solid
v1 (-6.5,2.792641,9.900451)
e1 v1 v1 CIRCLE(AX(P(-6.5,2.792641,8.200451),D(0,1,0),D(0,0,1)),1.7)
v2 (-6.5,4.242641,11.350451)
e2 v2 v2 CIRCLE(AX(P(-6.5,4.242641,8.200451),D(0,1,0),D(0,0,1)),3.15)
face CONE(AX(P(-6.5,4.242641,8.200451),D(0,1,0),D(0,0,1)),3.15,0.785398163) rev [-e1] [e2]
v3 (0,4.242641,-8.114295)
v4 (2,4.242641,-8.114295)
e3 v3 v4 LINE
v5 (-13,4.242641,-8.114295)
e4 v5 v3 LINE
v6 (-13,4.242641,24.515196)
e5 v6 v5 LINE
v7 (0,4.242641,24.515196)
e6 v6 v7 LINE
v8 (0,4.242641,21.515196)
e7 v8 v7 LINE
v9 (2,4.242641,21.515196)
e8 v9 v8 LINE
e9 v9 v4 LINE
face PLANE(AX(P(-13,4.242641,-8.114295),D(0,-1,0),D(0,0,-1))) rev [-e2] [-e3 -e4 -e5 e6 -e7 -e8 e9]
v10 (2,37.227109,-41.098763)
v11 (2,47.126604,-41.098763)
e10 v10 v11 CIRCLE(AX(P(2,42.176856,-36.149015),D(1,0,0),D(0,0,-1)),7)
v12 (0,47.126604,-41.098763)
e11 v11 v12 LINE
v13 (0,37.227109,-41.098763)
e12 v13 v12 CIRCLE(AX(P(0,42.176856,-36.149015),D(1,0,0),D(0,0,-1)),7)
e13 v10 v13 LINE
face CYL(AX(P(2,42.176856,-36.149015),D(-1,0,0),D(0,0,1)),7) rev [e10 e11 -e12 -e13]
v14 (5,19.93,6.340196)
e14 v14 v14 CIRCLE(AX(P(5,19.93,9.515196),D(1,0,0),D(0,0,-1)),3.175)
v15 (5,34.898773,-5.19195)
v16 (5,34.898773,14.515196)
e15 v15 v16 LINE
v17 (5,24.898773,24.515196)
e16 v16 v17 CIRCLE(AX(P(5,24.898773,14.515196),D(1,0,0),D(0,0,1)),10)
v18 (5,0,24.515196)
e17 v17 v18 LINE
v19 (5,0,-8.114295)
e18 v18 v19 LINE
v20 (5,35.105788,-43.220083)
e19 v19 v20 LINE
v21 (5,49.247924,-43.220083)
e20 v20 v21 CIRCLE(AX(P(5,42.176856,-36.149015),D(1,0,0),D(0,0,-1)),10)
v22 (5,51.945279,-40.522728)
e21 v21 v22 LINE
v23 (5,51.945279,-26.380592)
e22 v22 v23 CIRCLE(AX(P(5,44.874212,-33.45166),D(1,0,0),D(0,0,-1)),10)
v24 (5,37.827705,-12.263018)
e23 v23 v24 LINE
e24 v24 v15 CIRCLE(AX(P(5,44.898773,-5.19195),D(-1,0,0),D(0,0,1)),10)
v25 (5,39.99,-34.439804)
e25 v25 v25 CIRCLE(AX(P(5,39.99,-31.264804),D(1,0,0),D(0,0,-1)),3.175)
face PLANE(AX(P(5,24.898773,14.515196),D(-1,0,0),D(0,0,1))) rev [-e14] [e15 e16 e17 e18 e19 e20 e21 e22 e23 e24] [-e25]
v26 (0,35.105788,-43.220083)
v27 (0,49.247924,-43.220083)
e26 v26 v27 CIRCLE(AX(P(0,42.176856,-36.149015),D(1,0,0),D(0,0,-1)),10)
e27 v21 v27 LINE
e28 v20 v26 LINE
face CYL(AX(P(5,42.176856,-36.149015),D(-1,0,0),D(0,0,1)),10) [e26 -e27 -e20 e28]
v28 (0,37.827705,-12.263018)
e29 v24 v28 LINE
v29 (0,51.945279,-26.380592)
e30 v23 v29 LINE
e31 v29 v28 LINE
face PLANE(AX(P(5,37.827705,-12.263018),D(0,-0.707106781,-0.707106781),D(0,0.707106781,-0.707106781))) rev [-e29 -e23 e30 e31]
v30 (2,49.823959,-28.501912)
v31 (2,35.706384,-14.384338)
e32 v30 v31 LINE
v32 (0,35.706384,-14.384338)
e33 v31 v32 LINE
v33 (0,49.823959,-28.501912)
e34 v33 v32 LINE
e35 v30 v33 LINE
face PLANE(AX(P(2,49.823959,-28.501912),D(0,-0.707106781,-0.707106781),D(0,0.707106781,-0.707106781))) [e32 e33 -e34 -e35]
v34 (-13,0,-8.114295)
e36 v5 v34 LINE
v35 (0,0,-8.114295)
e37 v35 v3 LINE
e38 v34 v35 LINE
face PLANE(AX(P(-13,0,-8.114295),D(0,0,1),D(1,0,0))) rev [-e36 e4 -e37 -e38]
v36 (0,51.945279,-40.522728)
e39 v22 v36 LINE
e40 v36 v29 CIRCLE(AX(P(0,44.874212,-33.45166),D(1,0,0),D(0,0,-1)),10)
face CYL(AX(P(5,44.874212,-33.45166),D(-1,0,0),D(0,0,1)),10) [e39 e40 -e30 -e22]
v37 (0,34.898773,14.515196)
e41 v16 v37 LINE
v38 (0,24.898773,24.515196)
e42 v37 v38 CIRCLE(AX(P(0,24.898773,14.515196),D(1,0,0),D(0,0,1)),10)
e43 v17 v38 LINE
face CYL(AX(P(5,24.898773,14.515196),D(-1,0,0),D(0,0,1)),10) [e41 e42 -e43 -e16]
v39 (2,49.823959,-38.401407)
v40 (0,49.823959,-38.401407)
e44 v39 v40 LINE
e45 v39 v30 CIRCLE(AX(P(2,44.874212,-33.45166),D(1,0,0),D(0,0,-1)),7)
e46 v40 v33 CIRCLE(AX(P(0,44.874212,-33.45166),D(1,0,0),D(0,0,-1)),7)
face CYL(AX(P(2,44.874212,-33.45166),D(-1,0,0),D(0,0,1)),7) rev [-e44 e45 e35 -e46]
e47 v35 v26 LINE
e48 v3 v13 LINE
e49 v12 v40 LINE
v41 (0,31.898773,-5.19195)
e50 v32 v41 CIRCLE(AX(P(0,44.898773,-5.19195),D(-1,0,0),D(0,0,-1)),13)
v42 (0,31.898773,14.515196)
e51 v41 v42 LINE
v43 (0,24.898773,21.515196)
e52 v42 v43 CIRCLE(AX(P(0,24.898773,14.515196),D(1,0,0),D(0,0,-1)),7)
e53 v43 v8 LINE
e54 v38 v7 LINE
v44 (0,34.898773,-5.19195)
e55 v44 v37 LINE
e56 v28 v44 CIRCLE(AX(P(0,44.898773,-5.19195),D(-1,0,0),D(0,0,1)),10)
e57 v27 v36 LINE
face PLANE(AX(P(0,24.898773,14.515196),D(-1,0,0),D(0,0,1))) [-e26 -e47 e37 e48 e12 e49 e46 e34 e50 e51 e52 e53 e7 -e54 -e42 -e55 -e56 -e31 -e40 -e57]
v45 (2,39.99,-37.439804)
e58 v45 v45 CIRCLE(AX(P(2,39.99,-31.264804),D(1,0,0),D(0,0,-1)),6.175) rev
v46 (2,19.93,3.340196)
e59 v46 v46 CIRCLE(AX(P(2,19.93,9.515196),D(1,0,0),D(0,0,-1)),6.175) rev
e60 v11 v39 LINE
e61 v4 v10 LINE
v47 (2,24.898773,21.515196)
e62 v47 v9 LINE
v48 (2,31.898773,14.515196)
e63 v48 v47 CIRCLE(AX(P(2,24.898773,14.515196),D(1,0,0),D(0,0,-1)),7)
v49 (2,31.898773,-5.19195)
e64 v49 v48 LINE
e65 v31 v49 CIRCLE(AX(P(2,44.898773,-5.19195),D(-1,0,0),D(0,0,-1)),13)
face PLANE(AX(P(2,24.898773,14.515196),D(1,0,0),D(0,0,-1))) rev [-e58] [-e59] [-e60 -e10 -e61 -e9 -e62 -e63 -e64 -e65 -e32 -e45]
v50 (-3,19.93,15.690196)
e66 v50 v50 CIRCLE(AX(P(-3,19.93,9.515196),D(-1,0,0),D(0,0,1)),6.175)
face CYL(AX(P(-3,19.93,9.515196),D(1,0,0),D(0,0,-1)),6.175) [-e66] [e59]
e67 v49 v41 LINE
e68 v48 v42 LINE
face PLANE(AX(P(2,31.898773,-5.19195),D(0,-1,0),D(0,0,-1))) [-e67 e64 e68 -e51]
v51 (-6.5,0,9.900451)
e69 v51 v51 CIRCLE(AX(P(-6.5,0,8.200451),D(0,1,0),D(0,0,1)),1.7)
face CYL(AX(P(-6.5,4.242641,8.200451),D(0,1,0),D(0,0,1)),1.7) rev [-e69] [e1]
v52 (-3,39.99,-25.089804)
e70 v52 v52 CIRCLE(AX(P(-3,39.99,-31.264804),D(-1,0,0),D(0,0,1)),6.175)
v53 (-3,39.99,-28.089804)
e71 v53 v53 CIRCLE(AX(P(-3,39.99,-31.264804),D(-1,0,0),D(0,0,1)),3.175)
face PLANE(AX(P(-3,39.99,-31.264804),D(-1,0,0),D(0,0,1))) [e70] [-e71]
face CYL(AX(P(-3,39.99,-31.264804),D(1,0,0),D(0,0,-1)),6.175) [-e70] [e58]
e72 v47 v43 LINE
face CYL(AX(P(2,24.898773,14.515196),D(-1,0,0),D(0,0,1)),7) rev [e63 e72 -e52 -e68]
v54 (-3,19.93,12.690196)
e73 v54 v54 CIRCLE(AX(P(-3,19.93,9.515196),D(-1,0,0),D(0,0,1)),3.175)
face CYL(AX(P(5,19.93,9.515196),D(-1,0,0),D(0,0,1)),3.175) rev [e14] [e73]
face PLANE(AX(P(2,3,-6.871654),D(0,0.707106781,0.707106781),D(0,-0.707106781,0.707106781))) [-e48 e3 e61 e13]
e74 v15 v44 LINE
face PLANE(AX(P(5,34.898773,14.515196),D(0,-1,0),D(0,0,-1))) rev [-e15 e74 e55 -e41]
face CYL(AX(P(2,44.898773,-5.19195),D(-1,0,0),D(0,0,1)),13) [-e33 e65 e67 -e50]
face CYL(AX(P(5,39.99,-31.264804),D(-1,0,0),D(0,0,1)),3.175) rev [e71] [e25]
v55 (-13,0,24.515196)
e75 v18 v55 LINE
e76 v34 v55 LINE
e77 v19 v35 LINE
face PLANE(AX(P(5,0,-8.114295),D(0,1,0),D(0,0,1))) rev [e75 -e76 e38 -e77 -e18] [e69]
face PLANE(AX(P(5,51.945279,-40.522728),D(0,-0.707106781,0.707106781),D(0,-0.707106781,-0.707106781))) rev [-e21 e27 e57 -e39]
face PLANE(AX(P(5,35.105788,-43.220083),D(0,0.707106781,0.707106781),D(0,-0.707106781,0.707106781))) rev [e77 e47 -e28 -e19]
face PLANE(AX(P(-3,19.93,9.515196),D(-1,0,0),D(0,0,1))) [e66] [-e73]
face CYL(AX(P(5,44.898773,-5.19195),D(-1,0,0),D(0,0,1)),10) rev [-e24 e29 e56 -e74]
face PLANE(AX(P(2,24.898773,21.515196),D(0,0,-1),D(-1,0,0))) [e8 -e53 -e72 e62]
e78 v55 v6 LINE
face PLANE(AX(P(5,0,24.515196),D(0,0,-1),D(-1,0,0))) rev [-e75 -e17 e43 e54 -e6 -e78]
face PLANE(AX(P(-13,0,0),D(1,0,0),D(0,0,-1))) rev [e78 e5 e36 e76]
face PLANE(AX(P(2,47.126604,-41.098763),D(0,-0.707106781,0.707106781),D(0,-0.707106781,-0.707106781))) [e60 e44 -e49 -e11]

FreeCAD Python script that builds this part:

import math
import FreeCAD as App
import Part
import Sketcher

V = App.Vector
Q = App.Units.Quantity


def add_polygon(sketch, points):
    """Adds a closed chain of lines whose ends are joined by coincident constraints."""
    first, n = sketch.GeometryCount, len(points)
    for a, b in zip(points, points[1:] + points[:1]):
        sketch.addGeometry(Part.LineSegment(App.Vector(*a, 0), App.Vector(*b, 0)), False)
    for i in range(n):
        sketch.addConstraint(Sketcher.Constraint("Coincident", first + i, 2, first + (i + 1) % n, 1))

doc = App.newDocument("Part")
body = doc.addObject("PartDesign::Body", "Body")

sketch1 = doc.addObject("Sketcher::SketchObject", "Sketch")
body.addObject(sketch1)
sketch1.AttachmentSupport = (doc.YZ_Plane, [""])
sketch1.MapMode = "FlatFace"
sketch1.addGeometry(Part.LineSegment(V(0, 24.5, 0), V(0, -8.1, 0)), False)
sketch1.addGeometry(Part.LineSegment(V(0, -8.1, 0), V(35.1, -43.2, 0)), False)
sketch1.addGeometry(Part.ArcOfCircle(Part.Circle(V(42.2, -36.1, 0), V(0, 0, 1), 10), math.radians(-135), math.radians(-45)), False)
sketch1.addGeometry(Part.LineSegment(V(49.2, -43.2, 0), V(51.9, -40.5, 0)), False)
sketch1.addGeometry(Part.ArcOfCircle(Part.Circle(V(44.9, -33.5, 0), V(0, 0, 1), 10), math.radians(-45), math.radians(45)), False)
sketch1.addGeometry(Part.LineSegment(V(51.9, -26.4, 0), V(37.8, -12.3, 0)), False)
sketch1.addGeometry(Part.ArcOfCircle(Part.Circle(V(44.9, -5.2, 0), V(0, 0, 1), 10), math.radians(-180), math.radians(-135)), False)
sketch1.addGeometry(Part.LineSegment(V(34.9, -5.2, 0), V(34.9, 14.5, 0)), False)
sketch1.addGeometry(Part.ArcOfCircle(Part.Circle(V(24.9, 14.5, 0), V(0, 0, 1), 10), math.radians(0), math.radians(90)), False)
sketch1.addGeometry(Part.LineSegment(V(24.9, 24.5, 0), V(0, 24.5, 0)), False)
sketch1.addGeometry(Part.Circle(V(19.9, 9.5, 0), V(0, 0, 1), 3.2), False)
sketch1.addGeometry(Part.Circle(V(40, -31.3, 0), V(0, 0, 1), 3.2), False)
sketch1.addConstraint(Sketcher.Constraint("Coincident", 0, 2, 1, 1))
sketch1.addConstraint(Sketcher.Constraint("Tangent", 1, 2, 2, 1))
sketch1.addConstraint(Sketcher.Constraint("Tangent", 2, 2, 3, 1))
sketch1.addConstraint(Sketcher.Constraint("Tangent", 3, 2, 4, 1))
sketch1.addConstraint(Sketcher.Constraint("Tangent", 4, 2, 5, 1))
sketch1.addConstraint(Sketcher.Constraint("Tangent", 5, 2, 6, 2))
sketch1.addConstraint(Sketcher.Constraint("Tangent", 6, 1, 7, 1))
sketch1.addConstraint(Sketcher.Constraint("Tangent", 7, 2, 8, 1))
sketch1.addConstraint(Sketcher.Constraint("Tangent", 8, 2, 9, 1))
sketch1.addConstraint(Sketcher.Constraint("Coincident", 9, 2, 0, 1))
sketch1.addConstraint(Sketcher.Constraint("Vertical", 0))
sketch1.addConstraint(Sketcher.Constraint("Vertical", 7))
sketch1.addConstraint(Sketcher.Constraint("Horizontal", 9))
sketch1.addConstraint(Sketcher.Constraint("Equal", 2, 4))
sketch1.addConstraint(Sketcher.Constraint("Equal", 4, 6))
sketch1.addConstraint(Sketcher.Constraint("Equal", 6, 8))
sketch1.addConstraint(Sketcher.Constraint("Equal", 10, 11))
sketch1.addConstraint(Sketcher.Constraint("PointOnObject", 0, 2, -2))
sketch1.addConstraint(Sketcher.Constraint("Perpendicular", 1, 3))
sketch1.addConstraint(Sketcher.Constraint("Perpendicular", 3, 5))
sketch1.addConstraint(Sketcher.Constraint("Horizontal", 1, 2, 2, 2))
sketch1.addConstraint(Sketcher.Constraint("Radius", 2, Q("10 mm")))
sketch1.addConstraint(Sketcher.Constraint("Diameter", 10, Q("6.35 mm")))
sketch1.addConstraint(Sketcher.Constraint("DistanceY", 10, 3, 8, 3, Q("5 mm")))
sketch1.addConstraint(Sketcher.Constraint("DistanceX", -1, 1, 10, 3, Q("19.93 mm")))
sketch1.addConstraint(Sketcher.Constraint("DistanceX", -1, 1, 11, 3, Q("39.99 mm")))
sketch1.addConstraint(Sketcher.Constraint("DistanceY", 11, 3, 10, 3, Q("40.78 mm")))
sketch1.addConstraint(Sketcher.Constraint("DistanceY", 0, 2, 0, 1, Q("32.629491 mm")))
sketch1.addConstraint(Sketcher.Constraint("DistanceX", 9, 2, 9, 1, Q("24.898773 mm")))
sketch1.addConstraint(Sketcher.Constraint("DistanceY", 7, 1, 7, 2, Q("19.707146 mm")))
sketch1.addConstraint(Sketcher.Constraint("DistanceX", -1, 1, 4, 3, Q("44.874212 mm")))
sketch1.addConstraint(Sketcher.Constraint("DistanceY", 4, 3, -1, 1, Q("33.45166 mm")))
pad1 = doc.addObject("PartDesign::Pad", "Pad")
body.addObject(pad1)
pad1.Profile = sketch1
pad1.Length = 5

sketch2 = doc.addObject("Sketcher::SketchObject", "Sketch001")
body.addObject(sketch2)
sketch2.AttachmentSupport = (doc.YZ_Plane, [""])
sketch2.MapMode = "FlatFace"
sketch2.addGeometry(Part.LineSegment(V(24.9, 21.5, 0), V(3, 21.5, 0)), False)
sketch2.addGeometry(Part.LineSegment(V(3, 21.5, 0), V(3, -6.9, 0)), False)
sketch2.addGeometry(Part.LineSegment(V(3, -6.9, 0), V(37.2, -41.1, 0)), False)
sketch2.addGeometry(Part.ArcOfCircle(Part.Circle(V(42.2, -36.1, 0), V(0, 0, 1), 7), math.radians(-135), math.radians(-45)), False)
sketch2.addGeometry(Part.LineSegment(V(47.1, -41.1, 0), V(49.8, -38.4, 0)), False)
sketch2.addGeometry(Part.ArcOfCircle(Part.Circle(V(44.9, -33.5, 0), V(0, 0, 1), 7), math.radians(-45), math.radians(45)), False)
sketch2.addGeometry(Part.LineSegment(V(49.8, -28.5, 0), V(35.7, -14.4, 0)), False)
sketch2.addGeometry(Part.ArcOfCircle(Part.Circle(V(44.9, -5.2, 0), V(0, 0, 1), 13), math.radians(-180), math.radians(-135)), False)
sketch2.addGeometry(Part.LineSegment(V(31.9, -5.2, 0), V(31.9, 14.5, 0)), False)
sketch2.addGeometry(Part.ArcOfCircle(Part.Circle(V(24.9, 14.5, 0), V(0, 0, 1), 7), math.radians(0), math.radians(90)), False)
sketch2.addConstraint(Sketcher.Constraint("Coincident", 0, 2, 1, 1))
sketch2.addConstraint(Sketcher.Constraint("Coincident", 1, 2, 2, 1))
sketch2.addConstraint(Sketcher.Constraint("Tangent", 2, 2, 3, 1))
sketch2.addConstraint(Sketcher.Constraint("Tangent", 3, 2, 4, 1))
sketch2.addConstraint(Sketcher.Constraint("Tangent", 4, 2, 5, 1))
sketch2.addConstraint(Sketcher.Constraint("Tangent", 5, 2, 6, 1))
sketch2.addConstraint(Sketcher.Constraint("Tangent", 6, 2, 7, 2))
sketch2.addConstraint(Sketcher.Constraint("Tangent", 7, 1, 8, 1))
sketch2.addConstraint(Sketcher.Constraint("Tangent", 8, 2, 9, 1))
sketch2.addConstraint(Sketcher.Constraint("Tangent", 9, 2, 0, 1))
sketch2.addConstraint(Sketcher.Constraint("Horizontal", 0))
sketch2.addConstraint(Sketcher.Constraint("Vertical", 1))
sketch2.addConstraint(Sketcher.Constraint("Vertical", 8))
sketch2.addConstraint(Sketcher.Constraint("Equal", 3, 5))
sketch2.addConstraint(Sketcher.Constraint("Equal", 5, 9))
sketch2.addConstraint(Sketcher.Constraint("Perpendicular", 2, 4))
sketch2.addConstraint(Sketcher.Constraint("Perpendicular", 4, 6))
sketch2.addConstraint(Sketcher.Constraint("Horizontal", 2, 2, 3, 2))
sketch2.addConstraint(Sketcher.Constraint("Radius", 3, Q("7 mm")))
sketch2.addConstraint(Sketcher.Constraint("Radius", 7, Q("13 mm")))
sketch2.addConstraint(Sketcher.Constraint("DistanceX", -1, 1, 0, 2, Q("3 mm")))
sketch2.addConstraint(Sketcher.Constraint("DistanceY", 1, 2, 1, 1, Q("28.38685 mm")))
sketch2.addConstraint(Sketcher.Constraint("Distance", 2, Q("48.404441 mm")))
sketch2.addConstraint(Sketcher.Constraint("DistanceX", 0, 2, 0, 1, Q("21.898773 mm")))
sketch2.addConstraint(Sketcher.Constraint("DistanceY", 8, 1, 8, 2, Q("19.707146 mm")))
sketch2.addConstraint(Sketcher.Constraint("DistanceY", 5, 3, -1, 1, Q("33.45166 mm")))
pocket1 = doc.addObject("PartDesign::Pocket", "Pocket")
body.addObject(pocket1)
pocket1.Profile = sketch2
pocket1.Length = 2
pocket1.Reversed = True

sketch3 = doc.addObject("Sketcher::SketchObject", "Sketch002")
body.addObject(sketch3)
sketch3.AttachmentSupport = (doc.YZ_Plane, [""])
sketch3.MapMode = "FlatFace"
sketch3.AttachmentOffset = App.Placement(V(0, 0, 2), App.Rotation())
sketch3.addGeometry(Part.Circle(V(20, 10, 0), V(0, 0, 1), 6), False)
sketch3.addGeometry(Part.Circle(V(40, -31, 0), V(0, 0, 1), 6), False)
sketch3.addConstraint(Sketcher.Constraint("Equal", 0, 1))
sketch3.addConstraint(Sketcher.Constraint("Diameter", 0, Q("12.35 mm")))
sketch3.addConstraint(Sketcher.Constraint("DistanceX", -1, 1, 0, 3, Q("19.93 mm")))
sketch3.addConstraint(Sketcher.Constraint("DistanceX", -1, 1, 1, 3, Q("39.99 mm")))
sketch3.addConstraint(Sketcher.Constraint("DistanceY", 1, 3, 0, 3, Q("40.78 mm")))
sketch3.addConstraint(Sketcher.Constraint("DistanceY", -1, 1, 0, 3, Q("9.515196 mm")))
pad2 = doc.addObject("PartDesign::Pad", "Pad001")
body.addObject(pad2)
pad2.Profile = sketch3
pad2.Length = 5
pad2.Reversed = True

sketch4 = doc.addObject("Sketcher::SketchObject", "Sketch003")
body.addObject(sketch4)
sketch4.AttachmentSupport = (doc.YZ_Plane, [""])
sketch4.MapMode = "FlatFace"
sketch4.addGeometry(Part.Circle(V(40, -31.3, 0), V(0, 0, 1), 3.2), False)
sketch4.addGeometry(Part.Circle(V(19.9, 9.5, 0), V(0, 0, 1), 3.2), False)
sketch4.addConstraint(Sketcher.Constraint("Equal", 0, 1))
sketch4.addConstraint(Sketcher.Constraint("Diameter", 0, Q("6.35 mm")))
sketch4.addConstraint(Sketcher.Constraint("DistanceX", -1, 1, 0, 3, Q("39.99 mm")))
sketch4.addConstraint(Sketcher.Constraint("DistanceX", -1, 1, 1, 3, Q("19.93 mm")))
sketch4.addConstraint(Sketcher.Constraint("DistanceY", 0, 3, 1, 3, Q("40.78 mm")))
sketch4.addConstraint(Sketcher.Constraint("DistanceY", 0, 3, -1, 1, Q("31.264804 mm")))
pocket2 = doc.addObject("PartDesign::Pocket", "Pocket001")
body.addObject(pocket2)
pocket2.Profile = sketch4
pocket2.Type = "ThroughAll"
pocket2.Midplane = True

sketch5 = doc.addObject("Sketcher::SketchObject", "Sketch004")
body.addObject(sketch5)
sketch5.AttachmentSupport = (doc.YZ_Plane, [""])
sketch5.MapMode = "FlatFace"
sketch5.AttachmentOffset = App.Placement(V(0, 0, 2), App.Rotation())
add_polygon(sketch5, [(4.2, -8.1), (0, -8.1), (0, 24.5), (4.2, 24.5)])
sketch5.addConstraint(Sketcher.Constraint("Horizontal", 0))
sketch5.addConstraint(Sketcher.Constraint("Vertical", 1))
sketch5.addConstraint(Sketcher.Constraint("Horizontal", 2))
sketch5.addConstraint(Sketcher.Constraint("Vertical", 3))
sketch5.addConstraint(Sketcher.Constraint("PointOnObject", 0, 2, -2))
sketch5.addConstraint(Sketcher.Constraint("DistanceX", 0, 2, 0, 1, Q("4.242641 mm")))
sketch5.addConstraint(Sketcher.Constraint("DistanceY", 1, 1, 1, 2, Q("32.629491 mm")))
sketch5.addConstraint(Sketcher.Constraint("DistanceY", 0, 2, -1, 1, Q("8.114295 mm")))
pad3 = doc.addObject("PartDesign::Pad", "Pad002")
body.addObject(pad3)
pad3.Profile = sketch5
pad3.Length = 15
pad3.Reversed = True

sketch6 = doc.addObject("Sketcher::SketchObject", "Sketch005")
body.addObject(sketch6)
sketch6.AttachmentSupport = (doc.XZ_Plane, [""])
sketch6.MapMode = "FlatFace"
sketch6.AttachmentOffset = App.Placement(V(0, 0, -4.242641), App.Rotation())
sketch6.addGeometry(Part.Circle(V(-6.5, 8.2, 0), V(0, 0, 1), 1.7), False)
sketch6.addConstraint(Sketcher.Constraint("Diameter", 0, Q("3.4 mm")))
sketch6.addConstraint(Sketcher.Constraint("DistanceX", 0, 3, -1, 1, Q("6.5 mm")))
sketch6.addConstraint(Sketcher.Constraint("DistanceY", -1, 1, 0, 3, Q("8.200451 mm")))
doc.recompute()
hole = doc.addObject("PartDesign::Hole", "Hole")
body.addObject(hole)
hole.Profile = sketch6
hole.ThreadType = "None"
hole.Diameter = 3.4
hole.DepthType = "ThroughAll"
hole.HoleCutType = "Countersink"
hole.HoleCutDiameter = 6.3
hole.HoleCutCountersinkAngle = 90
hole.Reversed = True

doc.recompute()
